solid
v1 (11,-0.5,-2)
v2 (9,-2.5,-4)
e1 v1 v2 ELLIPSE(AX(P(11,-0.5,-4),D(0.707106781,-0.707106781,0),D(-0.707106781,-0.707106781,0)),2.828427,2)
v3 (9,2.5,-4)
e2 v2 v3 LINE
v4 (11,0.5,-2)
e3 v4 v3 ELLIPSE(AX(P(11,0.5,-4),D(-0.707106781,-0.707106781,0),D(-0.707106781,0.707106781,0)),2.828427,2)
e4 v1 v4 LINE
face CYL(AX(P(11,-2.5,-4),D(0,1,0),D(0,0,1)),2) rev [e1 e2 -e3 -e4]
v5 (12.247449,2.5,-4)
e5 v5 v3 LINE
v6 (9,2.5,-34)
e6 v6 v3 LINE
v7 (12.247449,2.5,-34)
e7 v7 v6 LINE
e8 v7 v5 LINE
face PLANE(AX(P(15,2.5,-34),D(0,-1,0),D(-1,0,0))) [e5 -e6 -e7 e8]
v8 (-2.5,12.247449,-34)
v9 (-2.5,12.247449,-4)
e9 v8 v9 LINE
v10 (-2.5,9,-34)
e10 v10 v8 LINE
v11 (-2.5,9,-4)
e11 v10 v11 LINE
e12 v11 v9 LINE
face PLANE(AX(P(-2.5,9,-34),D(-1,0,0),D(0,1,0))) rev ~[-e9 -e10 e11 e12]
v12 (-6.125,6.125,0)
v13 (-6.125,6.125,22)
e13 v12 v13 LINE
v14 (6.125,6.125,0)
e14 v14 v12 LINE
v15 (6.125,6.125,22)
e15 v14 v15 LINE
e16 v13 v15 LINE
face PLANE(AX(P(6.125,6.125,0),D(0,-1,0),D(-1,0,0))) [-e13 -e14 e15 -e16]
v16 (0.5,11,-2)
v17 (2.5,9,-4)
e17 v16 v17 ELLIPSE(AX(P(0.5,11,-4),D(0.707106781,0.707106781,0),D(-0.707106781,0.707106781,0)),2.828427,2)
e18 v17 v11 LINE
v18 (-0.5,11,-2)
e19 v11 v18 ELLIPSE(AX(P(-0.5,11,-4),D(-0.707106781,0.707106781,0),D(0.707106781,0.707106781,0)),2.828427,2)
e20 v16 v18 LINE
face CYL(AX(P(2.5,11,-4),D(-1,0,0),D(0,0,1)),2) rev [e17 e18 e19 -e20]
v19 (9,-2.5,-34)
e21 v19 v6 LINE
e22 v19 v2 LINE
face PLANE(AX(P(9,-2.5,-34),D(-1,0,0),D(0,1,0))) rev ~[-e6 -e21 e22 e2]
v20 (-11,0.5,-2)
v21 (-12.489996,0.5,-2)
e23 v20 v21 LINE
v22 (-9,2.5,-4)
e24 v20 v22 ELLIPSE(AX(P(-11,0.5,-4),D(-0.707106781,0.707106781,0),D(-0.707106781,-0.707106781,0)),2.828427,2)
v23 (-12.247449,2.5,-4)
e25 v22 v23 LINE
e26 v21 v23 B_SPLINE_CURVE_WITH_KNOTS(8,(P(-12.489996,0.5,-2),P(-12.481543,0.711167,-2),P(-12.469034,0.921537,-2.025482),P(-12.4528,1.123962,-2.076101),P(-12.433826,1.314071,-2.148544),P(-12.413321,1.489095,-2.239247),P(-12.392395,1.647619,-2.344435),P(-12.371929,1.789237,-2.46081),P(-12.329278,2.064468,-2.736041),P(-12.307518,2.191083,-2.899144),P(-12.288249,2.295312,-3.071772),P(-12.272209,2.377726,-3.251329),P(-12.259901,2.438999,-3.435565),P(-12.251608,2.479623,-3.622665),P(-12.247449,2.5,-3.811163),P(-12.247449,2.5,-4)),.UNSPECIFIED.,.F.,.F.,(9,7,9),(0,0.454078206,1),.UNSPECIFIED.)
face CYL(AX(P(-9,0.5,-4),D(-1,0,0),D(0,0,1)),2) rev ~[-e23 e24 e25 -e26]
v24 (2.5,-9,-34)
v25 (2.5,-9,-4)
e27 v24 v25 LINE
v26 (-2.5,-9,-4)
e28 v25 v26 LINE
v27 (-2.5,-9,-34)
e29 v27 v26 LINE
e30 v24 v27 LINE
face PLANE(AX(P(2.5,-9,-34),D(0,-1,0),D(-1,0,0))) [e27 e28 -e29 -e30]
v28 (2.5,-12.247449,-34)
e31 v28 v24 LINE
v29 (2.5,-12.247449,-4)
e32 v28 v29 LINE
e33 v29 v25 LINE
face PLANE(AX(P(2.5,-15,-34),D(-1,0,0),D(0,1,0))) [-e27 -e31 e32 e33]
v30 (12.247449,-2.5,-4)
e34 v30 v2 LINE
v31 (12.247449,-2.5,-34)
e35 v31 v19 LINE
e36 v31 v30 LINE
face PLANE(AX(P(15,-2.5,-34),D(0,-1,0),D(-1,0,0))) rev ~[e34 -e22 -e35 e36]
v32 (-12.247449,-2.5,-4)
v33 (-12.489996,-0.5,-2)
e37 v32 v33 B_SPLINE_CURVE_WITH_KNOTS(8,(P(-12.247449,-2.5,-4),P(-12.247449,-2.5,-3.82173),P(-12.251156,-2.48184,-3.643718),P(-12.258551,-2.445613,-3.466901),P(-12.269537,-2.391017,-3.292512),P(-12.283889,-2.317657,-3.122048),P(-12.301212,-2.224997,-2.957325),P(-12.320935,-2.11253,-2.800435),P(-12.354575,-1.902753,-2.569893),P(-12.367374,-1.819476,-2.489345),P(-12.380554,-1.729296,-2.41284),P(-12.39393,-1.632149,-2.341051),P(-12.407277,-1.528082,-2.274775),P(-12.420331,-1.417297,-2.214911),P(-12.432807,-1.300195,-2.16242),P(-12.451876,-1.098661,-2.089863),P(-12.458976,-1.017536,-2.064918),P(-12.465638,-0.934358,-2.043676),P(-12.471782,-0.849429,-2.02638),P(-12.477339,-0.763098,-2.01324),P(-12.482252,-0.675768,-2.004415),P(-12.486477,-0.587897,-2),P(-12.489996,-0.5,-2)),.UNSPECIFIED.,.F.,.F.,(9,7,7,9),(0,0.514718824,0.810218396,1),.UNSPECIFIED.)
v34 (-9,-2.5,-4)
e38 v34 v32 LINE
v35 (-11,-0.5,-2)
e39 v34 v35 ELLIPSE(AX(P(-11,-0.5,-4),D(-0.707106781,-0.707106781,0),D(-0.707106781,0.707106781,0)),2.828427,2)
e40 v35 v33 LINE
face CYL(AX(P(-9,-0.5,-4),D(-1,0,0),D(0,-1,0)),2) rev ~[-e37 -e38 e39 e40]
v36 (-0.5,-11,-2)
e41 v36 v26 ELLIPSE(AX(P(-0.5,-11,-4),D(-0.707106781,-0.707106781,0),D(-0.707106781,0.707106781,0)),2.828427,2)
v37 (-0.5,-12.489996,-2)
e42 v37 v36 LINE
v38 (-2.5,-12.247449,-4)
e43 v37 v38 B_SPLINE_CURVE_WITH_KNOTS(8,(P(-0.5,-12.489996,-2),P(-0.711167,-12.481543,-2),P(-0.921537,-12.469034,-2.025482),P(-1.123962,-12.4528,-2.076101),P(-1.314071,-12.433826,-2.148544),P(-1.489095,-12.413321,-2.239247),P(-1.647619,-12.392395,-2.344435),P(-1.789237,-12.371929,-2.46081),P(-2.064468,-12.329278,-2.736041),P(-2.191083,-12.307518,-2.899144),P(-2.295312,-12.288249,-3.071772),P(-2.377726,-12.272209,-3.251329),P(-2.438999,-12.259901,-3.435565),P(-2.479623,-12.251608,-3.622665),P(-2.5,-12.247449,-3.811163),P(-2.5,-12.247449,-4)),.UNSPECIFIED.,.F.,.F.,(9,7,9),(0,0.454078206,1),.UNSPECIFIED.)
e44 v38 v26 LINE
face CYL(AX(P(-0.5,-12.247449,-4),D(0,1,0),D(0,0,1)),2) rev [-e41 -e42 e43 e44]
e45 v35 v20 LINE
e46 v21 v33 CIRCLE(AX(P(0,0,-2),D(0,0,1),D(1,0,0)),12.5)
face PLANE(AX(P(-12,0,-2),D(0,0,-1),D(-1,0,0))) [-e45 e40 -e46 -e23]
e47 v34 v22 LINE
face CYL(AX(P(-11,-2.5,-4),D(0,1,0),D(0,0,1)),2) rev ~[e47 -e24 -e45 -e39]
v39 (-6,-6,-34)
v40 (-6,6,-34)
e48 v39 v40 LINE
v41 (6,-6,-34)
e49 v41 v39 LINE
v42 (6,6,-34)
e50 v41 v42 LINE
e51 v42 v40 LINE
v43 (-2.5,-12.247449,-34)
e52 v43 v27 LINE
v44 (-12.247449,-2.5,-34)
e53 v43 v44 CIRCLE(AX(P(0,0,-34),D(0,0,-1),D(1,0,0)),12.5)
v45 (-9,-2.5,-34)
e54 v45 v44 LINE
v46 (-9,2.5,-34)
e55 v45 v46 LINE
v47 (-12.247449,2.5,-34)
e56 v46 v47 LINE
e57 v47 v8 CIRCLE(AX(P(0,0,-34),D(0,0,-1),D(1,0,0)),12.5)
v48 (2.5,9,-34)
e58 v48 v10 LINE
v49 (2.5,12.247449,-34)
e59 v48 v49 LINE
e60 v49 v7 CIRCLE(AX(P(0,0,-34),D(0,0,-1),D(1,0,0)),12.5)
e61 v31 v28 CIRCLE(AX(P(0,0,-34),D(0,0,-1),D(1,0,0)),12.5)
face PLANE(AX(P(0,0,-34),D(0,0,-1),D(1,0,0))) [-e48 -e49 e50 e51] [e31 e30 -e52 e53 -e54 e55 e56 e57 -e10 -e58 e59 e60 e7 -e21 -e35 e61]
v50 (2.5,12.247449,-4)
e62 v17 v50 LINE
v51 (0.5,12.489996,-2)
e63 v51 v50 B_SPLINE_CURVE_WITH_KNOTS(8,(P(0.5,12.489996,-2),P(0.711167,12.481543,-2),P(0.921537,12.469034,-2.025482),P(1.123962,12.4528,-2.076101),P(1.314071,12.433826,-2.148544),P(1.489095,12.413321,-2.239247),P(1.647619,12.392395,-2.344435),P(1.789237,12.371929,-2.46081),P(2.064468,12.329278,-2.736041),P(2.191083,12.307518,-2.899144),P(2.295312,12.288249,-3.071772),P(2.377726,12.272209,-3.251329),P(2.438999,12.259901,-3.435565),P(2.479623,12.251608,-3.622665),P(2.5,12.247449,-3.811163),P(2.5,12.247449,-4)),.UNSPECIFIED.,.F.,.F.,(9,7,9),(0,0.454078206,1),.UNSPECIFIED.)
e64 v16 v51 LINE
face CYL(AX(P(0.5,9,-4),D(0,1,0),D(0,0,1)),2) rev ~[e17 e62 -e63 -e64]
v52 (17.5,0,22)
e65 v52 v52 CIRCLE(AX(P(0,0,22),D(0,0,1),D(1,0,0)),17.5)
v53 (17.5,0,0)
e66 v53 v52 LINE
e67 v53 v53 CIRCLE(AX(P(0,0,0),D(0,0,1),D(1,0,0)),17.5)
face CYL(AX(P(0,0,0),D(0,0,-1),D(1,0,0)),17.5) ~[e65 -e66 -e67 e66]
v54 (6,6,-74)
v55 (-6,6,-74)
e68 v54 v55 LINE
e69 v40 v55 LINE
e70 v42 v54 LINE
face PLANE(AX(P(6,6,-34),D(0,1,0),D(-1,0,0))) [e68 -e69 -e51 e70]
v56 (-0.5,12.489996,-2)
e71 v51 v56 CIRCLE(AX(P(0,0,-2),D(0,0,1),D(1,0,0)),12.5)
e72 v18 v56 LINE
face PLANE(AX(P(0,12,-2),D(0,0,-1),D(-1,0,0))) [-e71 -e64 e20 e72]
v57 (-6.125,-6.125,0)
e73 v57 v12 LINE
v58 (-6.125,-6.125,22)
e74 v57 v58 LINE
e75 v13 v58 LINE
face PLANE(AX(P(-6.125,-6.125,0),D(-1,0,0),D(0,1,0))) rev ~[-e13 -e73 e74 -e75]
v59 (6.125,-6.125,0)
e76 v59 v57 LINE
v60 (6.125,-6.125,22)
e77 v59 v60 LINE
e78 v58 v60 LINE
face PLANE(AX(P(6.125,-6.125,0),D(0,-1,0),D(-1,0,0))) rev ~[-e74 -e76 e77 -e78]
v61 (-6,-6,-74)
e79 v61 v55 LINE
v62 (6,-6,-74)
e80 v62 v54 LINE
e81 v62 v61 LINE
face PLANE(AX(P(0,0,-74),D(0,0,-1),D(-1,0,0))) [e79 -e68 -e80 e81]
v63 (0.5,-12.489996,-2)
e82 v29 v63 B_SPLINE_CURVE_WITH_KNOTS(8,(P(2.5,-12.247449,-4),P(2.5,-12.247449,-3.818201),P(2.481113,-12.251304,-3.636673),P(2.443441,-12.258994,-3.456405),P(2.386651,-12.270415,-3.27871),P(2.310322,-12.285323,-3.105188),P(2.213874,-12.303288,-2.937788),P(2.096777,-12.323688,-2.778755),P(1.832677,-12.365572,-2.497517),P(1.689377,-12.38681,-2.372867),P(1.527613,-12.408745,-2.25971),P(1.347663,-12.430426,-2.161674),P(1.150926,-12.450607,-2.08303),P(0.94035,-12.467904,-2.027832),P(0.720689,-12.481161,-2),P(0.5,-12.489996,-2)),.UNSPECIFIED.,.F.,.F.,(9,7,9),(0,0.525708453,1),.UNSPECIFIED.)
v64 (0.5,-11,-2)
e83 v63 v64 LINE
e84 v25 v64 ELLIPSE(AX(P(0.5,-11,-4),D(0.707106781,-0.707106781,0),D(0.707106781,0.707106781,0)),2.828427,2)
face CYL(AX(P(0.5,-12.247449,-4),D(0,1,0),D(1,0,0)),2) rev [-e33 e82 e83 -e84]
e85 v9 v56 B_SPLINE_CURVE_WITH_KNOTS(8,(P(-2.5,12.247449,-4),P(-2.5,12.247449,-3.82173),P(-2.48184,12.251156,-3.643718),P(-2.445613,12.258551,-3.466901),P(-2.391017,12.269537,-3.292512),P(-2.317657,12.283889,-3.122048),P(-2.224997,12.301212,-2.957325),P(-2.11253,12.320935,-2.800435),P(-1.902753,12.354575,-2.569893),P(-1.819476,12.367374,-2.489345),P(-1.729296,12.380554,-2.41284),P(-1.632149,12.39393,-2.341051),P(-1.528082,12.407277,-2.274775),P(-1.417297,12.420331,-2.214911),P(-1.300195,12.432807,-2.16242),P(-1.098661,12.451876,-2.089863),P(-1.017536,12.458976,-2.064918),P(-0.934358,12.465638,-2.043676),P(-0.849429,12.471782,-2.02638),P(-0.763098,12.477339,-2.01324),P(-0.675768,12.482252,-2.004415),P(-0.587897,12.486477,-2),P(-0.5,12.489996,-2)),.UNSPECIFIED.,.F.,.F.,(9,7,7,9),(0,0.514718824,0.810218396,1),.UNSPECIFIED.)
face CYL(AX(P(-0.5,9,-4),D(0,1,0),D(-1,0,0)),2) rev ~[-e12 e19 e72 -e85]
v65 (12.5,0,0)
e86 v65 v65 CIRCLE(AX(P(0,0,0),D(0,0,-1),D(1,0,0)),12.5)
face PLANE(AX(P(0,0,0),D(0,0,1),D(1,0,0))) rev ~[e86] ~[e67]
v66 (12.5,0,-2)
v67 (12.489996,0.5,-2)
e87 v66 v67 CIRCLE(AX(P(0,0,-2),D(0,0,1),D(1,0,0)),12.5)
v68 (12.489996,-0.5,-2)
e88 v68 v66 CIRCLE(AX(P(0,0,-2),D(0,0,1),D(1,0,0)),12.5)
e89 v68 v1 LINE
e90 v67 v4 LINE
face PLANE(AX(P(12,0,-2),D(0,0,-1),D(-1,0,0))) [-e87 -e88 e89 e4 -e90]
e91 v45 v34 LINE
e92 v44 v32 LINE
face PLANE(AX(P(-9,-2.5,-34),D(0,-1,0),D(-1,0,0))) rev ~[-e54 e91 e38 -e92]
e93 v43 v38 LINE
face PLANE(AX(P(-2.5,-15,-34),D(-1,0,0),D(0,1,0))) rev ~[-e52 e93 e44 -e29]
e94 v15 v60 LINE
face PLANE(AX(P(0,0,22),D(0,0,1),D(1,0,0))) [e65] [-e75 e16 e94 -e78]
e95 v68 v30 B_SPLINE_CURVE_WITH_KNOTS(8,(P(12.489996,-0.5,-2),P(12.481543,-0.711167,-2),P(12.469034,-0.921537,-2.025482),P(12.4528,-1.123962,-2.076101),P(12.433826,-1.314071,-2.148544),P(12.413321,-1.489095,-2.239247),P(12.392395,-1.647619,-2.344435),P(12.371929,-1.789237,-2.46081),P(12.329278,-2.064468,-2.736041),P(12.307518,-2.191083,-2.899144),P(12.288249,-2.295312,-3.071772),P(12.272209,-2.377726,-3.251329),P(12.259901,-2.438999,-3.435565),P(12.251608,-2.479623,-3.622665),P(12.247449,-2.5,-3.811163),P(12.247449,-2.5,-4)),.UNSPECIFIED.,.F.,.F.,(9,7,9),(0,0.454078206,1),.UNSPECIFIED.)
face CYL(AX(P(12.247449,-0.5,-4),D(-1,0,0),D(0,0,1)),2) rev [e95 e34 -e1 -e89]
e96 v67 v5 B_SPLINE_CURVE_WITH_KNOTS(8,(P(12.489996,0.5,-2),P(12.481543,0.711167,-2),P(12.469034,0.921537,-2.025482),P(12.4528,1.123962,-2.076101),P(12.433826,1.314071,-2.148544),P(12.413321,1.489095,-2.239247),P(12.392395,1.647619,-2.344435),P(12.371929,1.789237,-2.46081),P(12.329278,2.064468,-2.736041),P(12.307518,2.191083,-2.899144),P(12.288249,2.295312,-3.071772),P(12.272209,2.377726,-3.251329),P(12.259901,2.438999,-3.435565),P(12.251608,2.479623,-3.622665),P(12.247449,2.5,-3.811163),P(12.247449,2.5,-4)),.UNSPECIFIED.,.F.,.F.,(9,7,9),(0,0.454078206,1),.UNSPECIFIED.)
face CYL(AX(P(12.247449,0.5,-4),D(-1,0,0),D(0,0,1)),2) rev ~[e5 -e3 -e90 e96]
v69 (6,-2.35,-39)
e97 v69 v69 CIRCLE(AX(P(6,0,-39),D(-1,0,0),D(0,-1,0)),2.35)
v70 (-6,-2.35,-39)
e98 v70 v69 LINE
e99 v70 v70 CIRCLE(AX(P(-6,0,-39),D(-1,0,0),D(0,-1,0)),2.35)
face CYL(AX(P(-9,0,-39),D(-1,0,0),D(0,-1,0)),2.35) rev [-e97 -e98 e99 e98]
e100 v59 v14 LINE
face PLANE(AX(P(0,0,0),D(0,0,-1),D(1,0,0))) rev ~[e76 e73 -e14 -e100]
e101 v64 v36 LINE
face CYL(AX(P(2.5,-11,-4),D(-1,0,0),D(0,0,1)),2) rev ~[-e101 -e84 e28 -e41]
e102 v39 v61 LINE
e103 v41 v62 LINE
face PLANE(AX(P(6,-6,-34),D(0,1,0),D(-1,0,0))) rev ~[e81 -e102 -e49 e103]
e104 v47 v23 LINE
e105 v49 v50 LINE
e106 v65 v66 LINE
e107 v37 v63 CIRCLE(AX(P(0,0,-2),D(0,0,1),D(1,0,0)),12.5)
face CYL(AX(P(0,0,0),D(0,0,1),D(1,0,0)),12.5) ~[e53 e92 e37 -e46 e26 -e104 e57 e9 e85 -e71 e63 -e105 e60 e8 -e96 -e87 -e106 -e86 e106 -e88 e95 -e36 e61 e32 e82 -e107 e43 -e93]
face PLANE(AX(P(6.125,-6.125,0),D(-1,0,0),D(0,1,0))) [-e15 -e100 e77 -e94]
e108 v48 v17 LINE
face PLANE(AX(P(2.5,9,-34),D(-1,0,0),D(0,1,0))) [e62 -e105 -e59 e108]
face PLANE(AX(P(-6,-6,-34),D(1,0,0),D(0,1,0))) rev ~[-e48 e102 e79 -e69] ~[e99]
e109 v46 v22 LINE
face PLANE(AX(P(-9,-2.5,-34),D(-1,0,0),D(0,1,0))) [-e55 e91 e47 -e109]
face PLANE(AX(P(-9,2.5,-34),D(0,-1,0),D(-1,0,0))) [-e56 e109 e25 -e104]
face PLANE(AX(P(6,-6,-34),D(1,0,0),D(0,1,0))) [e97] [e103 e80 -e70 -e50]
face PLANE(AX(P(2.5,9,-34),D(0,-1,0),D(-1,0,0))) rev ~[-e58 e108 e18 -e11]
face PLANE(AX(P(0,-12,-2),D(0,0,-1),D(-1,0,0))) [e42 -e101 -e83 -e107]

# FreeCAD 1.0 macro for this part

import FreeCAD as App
import Part
import Sketcher

V = App.Vector


def edges_at(feature, points):
    """Names of the edges that pass closest to the given points."""
    edges = feature.Shape.Edges
    near = lambda p: min(range(len(edges)), key=lambda i: edges[i].distToShape(Part.Vertex(*p))[0])
    return sorted({f"Edge{near(p) + 1}" for p in points})

doc = App.newDocument("Part")
body = doc.addObject("PartDesign::Body", "Body")

# Sketch on XY plane
sketch1 = body.newObject("Sketcher::SketchObject", "Sketch")
sketch1.AttachmentSupport = (doc.getObject("XY_Plane"), [""])
sketch1.MapMode = "FlatFace"
sketch1.addGeometry(Part.Circle(V(0, 0, 0), V(0, 0, 1), 18), False)
sketch1.addConstraint([
    Sketcher.Constraint("Coincident", 0, 3, -1, 1),
    Sketcher.Constraint("Diameter", 0, 35.0),
])
pad1 = body.newObject("PartDesign::Pad", "Pad")
pad1.Profile = sketch1
pad1.Length = 22

# Sketch on XY plane
sketch2 = body.newObject("Sketcher::SketchObject", "Sketch001")
sketch2.AttachmentSupport = (doc.getObject("XY_Plane"), [""])
sketch2.MapMode = "FlatFace"
sketch2.addGeometry([
    Part.LineSegment(V(6, 6, 0), V(6, -6, 0)),
    Part.LineSegment(V(6, -6, 0), V(-6, -6, 0)),
    Part.LineSegment(V(-6, -6, 0), V(-6, 6, 0)),
    Part.LineSegment(V(-6, 6, 0), V(6, 6, 0)),
], False)
sketch2.addConstraint([
    Sketcher.Constraint("Coincident", 0, 2, 1, 1),
    Sketcher.Constraint("Coincident", 1, 2, 2, 1),
    Sketcher.Constraint("Coincident", 2, 2, 3, 1),
    Sketcher.Constraint("Coincident", 3, 2, 0, 1),
    Sketcher.Constraint("Vertical", 0),
    Sketcher.Constraint("Horizontal", 1),
    Sketcher.Constraint("Vertical", 2),
    Sketcher.Constraint("Horizontal", 3),
    Sketcher.Constraint("Symmetric", 0, 2, 2, 2, -1, 1),
    Sketcher.Constraint("Equal", 3, 0),
    Sketcher.Constraint("DistanceX", 1, 2, 1, 1, 12.25),
])
pocket1 = body.newObject("PartDesign::Pocket", "Pocket")
pocket1.Profile = sketch2
pocket1.Length = 25
pocket1.Reversed = True

# Sketch on XY plane
sketch3 = body.newObject("Sketcher::SketchObject", "Sketch002")
sketch3.AttachmentSupport = (doc.getObject("XY_Plane"), [""])
sketch3.MapMode = "FlatFace"
sketch3.addGeometry(Part.Circle(V(0, 0, 0), V(0, 0, 1), 12), False)
sketch3.addConstraint([
    Sketcher.Constraint("Coincident", 0, 3, -1, 1),
    Sketcher.Constraint("Diameter", 0, 25.0),
])
pad2 = body.newObject("PartDesign::Pad", "Pad001")
pad2.Profile = sketch3
pad2.Length = 34
pad2.Reversed = True

# Sketch on XY plane
sketch4 = body.newObject("Sketcher::SketchObject", "Sketch003")
sketch4.AttachmentSupport = (doc.getObject("XY_Plane"), [""])
sketch4.MapMode = "FlatFace"
sketch4.AttachmentOffset = App.Placement(V(0, 0, -34), App.Rotation())
sketch4.addGeometry([
    Part.LineSegment(V(2, -9, 0), V(2, -15, 0)),  # 0
    Part.LineSegment(V(2, -15, 0), V(-2, -15, 0)),  # 1
    Part.LineSegment(V(-2, -15, 0), V(-2, -9, 0)),  # 2
    Part.LineSegment(V(-2, -9, 0), V(2, -9, 0)),  # 3
    Part.LineSegment(V(2, 15, 0), V(2, 9, 0)),  # 4
    Part.LineSegment(V(2, 9, 0), V(-2, 9, 0)),  # 5
    Part.LineSegment(V(-2, 9, 0), V(-2, 15, 0)),  # 6
    Part.LineSegment(V(-2, 15, 0), V(2, 15, 0)),  # 7
    Part.LineSegment(V(-9, 2, 0), V(-9, -2, 0)),  # 8
    Part.LineSegment(V(-9, -2, 0), V(-15, -2, 0)),  # 9
    Part.LineSegment(V(-15, -2, 0), V(-15, 2, 0)),  # 10
    Part.LineSegment(V(-15, 2, 0), V(-9, 2, 0)),  # 11
    Part.LineSegment(V(15, 2, 0), V(15, -2, 0)),  # 12
    Part.LineSegment(V(15, -2, 0), V(9, -2, 0)),  # 13
    Part.LineSegment(V(9, -2, 0), V(9, 2, 0)),  # 14
    Part.LineSegment(V(9, 2, 0), V(15, 2, 0)),  # 15
], False)
sketch4.addConstraint([
    Sketcher.Constraint("Coincident", 0, 2, 1, 1),
    Sketcher.Constraint("Coincident", 1, 2, 2, 1),
    Sketcher.Constraint("Coincident", 2, 2, 3, 1),
    Sketcher.Constraint("Coincident", 3, 2, 0, 1),
    Sketcher.Constraint("Coincident", 4, 2, 5, 1),
    Sketcher.Constraint("Coincident", 5, 2, 6, 1),
    Sketcher.Constraint("Coincident", 6, 2, 7, 1),
    Sketcher.Constraint("Coincident", 7, 2, 4, 1),
    Sketcher.Constraint("Coincident", 8, 2, 9, 1),
    Sketcher.Constraint("Coincident", 9, 2, 10, 1),
    Sketcher.Constraint("Coincident", 10, 2, 11, 1),
    Sketcher.Constraint("Coincident", 11, 2, 8, 1),
    Sketcher.Constraint("Coincident", 12, 2, 13, 1),
    Sketcher.Constraint("Coincident", 13, 2, 14, 1),
    Sketcher.Constraint("Coincident", 14, 2, 15, 1),
    Sketcher.Constraint("Coincident", 15, 2, 12, 1),
    Sketcher.Constraint("Vertical", 0),
    Sketcher.Constraint("Horizontal", 1),
    Sketcher.Constraint("Vertical", 2),
    Sketcher.Constraint("Horizontal", 3),
    Sketcher.Constraint("Vertical", 4),
    Sketcher.Constraint("Horizontal", 5),
    Sketcher.Constraint("Vertical", 6),
    Sketcher.Constraint("Horizontal", 7),
    Sketcher.Constraint("Vertical", 8),
    Sketcher.Constraint("Horizontal", 9),
    Sketcher.Constraint("Vertical", 10),
    Sketcher.Constraint("Horizontal", 11),
    Sketcher.Constraint("Vertical", 12),
    Sketcher.Constraint("Horizontal", 13),
    Sketcher.Constraint("Vertical", 14),
    Sketcher.Constraint("Horizontal", 15),
    Sketcher.Constraint("Symmetric", 2, 2, 4, 2, -1, 1),
    Sketcher.Constraint("Symmetric", 0, 2, 6, 2, -1, 1),
    Sketcher.Constraint("Symmetric", 10, 2, 12, 2, -1, 1),
    Sketcher.Constraint("Symmetric", 8, 2, 14, 2, -1, 1),
    Sketcher.Constraint("Horizontal", 9, 2, 12, 2),
    Sketcher.Constraint("Vertical", 3, 2, 4, 2),
    Sketcher.Constraint("Equal", 15, 0),
    Sketcher.Constraint("Equal", 7, 8),
    Sketcher.Constraint("DistanceX", 1, 2, 1, 1, 5.0),
    Sketcher.Constraint("DistanceX", 9, 2, 9, 1, 6.0),
    Sketcher.Constraint("DistanceY", 0, 2, -1, 1, 15.0),
    Sketcher.Constraint("DistanceX", 8, 2, -1, 1, 9.0),
])
pocket2 = body.newObject("PartDesign::Pocket", "Pocket001")
pocket2.Profile = sketch4
pocket2.Length = 32
pocket2.Reversed = True
doc.recompute()

fillet = body.newObject("PartDesign::Fillet", "Fillet")
fillet.Base = (pocket2, edges_at(pocket2, [(10.624, 2.5, -2), (10.624, -2.5, -2), (9, 0, -2)]))
fillet.Radius = 2
doc.recompute()

fillet2 = body.newObject("PartDesign::Fillet", "Fillet001")
fillet2.Base = (fillet, edges_at(fillet, [(2.5, -10.624, -2), (-2.5, -10.624, -2), (0, -9, -2)]))
fillet2.Radius = 2
doc.recompute()

fillet3 = body.newObject("PartDesign::Fillet", "Fillet002")
fillet3.Base = (fillet2, edges_at(fillet2, [(-10.624, 2.5, -2), (-10.624, -2.5, -2), (-9, 0, -2)]))
fillet3.Radius = 2
doc.recompute()

fillet4 = body.newObject("PartDesign::Fillet", "Fillet003")
fillet4.Base = (fillet3, edges_at(fillet3, [(2.5, 10.624, -2), (-2.5, 10.624, -2), (0, 9, -2)]))
fillet4.Radius = 2

# Sketch on XY plane
sketch5 = body.newObject("Sketcher::SketchObject", "Sketch004")
sketch5.AttachmentSupport = (doc.getObject("XY_Plane"), [""])
sketch5.MapMode = "FlatFace"
sketch5.AttachmentOffset = App.Placement(V(0, 0, -34), App.Rotation())
sketch5.addGeometry([
    Part.LineSegment(V(6, 6, 0), V(6, -6, 0)),
    Part.LineSegment(V(6, -6, 0), V(-6, -6, 0)),
    Part.LineSegment(V(-6, -6, 0), V(-6, 6, 0)),
    Part.LineSegment(V(-6, 6, 0), V(6, 6, 0)),
], False)
sketch5.addConstraint([
    Sketcher.Constraint("Coincident", 0, 2, 1, 1),
    Sketcher.Constraint("Coincident", 1, 2, 2, 1),
    Sketcher.Constraint("Coincident", 2, 2, 3, 1),
    Sketcher.Constraint("Coincident", 3, 2, 0, 1),
    Sketcher.Constraint("Vertical", 0),
    Sketcher.Constraint("Horizontal", 1),
    Sketcher.Constraint("Vertical", 2),
    Sketcher.Constraint("Horizontal", 3),
    Sketcher.Constraint("Symmetric", 0, 2, 2, 2, -1, 1),
    Sketcher.Constraint("Equal", 3, 0),
    Sketcher.Constraint("DistanceX", 1, 2, 1, 1, 12.0),
])
pad3 = body.newObject("PartDesign::Pad", "Pad002")
pad3.Profile = sketch5
pad3.Length = 40
pad3.Reversed = True

# Sketch on YZ plane
sketch6 = body.newObject("Sketcher::SketchObject", "Sketch005")
sketch6.AttachmentSupport = (doc.getObject("YZ_Plane"), [""])
sketch6.MapMode = "FlatFace"
sketch6.AttachmentOffset = App.Placement(V(0, 0, 6), App.Rotation())
sketch6.addGeometry(Part.Circle(V(0, -39, 0), V(0, 0, 1), 2.4), False)
sketch6.addConstraint([
    Sketcher.Constraint("PointOnObject", 0, 3, -2),
    Sketcher.Constraint("Diameter", 0, 4.7),
    Sketcher.Constraint("DistanceY", 0, 3, -1, 1, 39.0),
])
pocket3 = body.newObject("PartDesign::Pocket", "Pocket002")
pocket3.Profile = sketch6
pocket3.Type = "ThroughAll"
pocket3.Midplane = True

doc.recompute()
